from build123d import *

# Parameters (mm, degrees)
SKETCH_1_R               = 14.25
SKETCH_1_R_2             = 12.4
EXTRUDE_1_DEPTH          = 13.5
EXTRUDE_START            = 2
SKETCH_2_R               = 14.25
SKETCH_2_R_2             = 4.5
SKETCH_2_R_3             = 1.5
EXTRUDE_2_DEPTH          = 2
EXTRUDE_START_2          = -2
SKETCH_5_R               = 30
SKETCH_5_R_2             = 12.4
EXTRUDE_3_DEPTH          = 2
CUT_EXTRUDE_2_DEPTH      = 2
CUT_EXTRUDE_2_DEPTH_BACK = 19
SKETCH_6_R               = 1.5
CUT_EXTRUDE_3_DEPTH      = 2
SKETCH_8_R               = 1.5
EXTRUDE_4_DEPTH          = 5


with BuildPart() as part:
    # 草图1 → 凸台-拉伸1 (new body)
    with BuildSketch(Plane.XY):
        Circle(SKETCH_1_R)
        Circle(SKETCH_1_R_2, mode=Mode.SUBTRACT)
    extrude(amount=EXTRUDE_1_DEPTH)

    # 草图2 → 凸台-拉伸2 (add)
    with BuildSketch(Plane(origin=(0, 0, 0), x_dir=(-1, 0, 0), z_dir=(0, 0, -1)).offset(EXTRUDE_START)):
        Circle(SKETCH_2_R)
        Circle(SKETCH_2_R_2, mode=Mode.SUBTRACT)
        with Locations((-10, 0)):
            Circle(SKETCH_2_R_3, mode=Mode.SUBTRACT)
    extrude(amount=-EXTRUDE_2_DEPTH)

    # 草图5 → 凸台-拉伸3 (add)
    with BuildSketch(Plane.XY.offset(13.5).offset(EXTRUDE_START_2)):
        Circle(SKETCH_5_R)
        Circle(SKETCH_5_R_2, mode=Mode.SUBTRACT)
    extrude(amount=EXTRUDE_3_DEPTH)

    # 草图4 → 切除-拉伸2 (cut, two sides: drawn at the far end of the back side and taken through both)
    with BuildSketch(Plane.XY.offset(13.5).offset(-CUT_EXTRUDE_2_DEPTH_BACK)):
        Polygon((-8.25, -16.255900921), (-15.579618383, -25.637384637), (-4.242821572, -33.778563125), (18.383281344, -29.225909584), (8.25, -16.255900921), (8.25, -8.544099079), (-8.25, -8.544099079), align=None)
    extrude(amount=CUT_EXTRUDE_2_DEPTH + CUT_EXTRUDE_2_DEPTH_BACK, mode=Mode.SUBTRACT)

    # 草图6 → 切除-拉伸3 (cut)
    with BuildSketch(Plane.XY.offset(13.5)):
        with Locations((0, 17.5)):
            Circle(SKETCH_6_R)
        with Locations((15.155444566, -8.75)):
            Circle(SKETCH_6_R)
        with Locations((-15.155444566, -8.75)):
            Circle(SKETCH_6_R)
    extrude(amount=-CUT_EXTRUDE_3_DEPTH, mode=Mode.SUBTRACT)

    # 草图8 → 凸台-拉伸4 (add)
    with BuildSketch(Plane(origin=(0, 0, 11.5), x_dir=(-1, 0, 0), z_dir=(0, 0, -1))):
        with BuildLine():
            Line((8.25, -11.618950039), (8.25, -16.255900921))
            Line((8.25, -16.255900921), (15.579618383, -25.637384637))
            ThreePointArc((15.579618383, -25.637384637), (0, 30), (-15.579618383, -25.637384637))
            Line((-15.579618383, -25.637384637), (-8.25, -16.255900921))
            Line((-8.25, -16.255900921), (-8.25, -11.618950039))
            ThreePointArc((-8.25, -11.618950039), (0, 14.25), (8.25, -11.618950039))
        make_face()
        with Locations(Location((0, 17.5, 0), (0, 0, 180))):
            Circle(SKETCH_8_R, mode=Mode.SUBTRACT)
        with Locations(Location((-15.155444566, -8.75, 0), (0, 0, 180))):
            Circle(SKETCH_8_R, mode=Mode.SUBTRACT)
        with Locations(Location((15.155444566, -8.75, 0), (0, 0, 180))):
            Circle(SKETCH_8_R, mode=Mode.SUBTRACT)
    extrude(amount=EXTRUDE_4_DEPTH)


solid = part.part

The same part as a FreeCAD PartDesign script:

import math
import FreeCAD as App
import Part
import Sketcher
from FreeCAD import Vector
Q = App.Units.Quantity


def add_polygon(sketch, points):
    """Adds a closed chain of lines whose ends are joined by coincident constraints."""
    first, n = sketch.GeometryCount, len(points)
    for a, b in zip(points, points[1:] + points[:1]):
        sketch.addGeometry(Part.LineSegment(App.Vector(*a, 0), App.Vector(*b, 0)), False)
    for i in range(n):
        sketch.addConstraint(Sketcher.Constraint("Coincident", first + i, 2, first + (i + 1) % n, 1))

doc = App.newDocument("Part")
body = doc.addObject("PartDesign::Body", "Body")

# Sketch on XY plane
sketch1 = body.newObject("Sketcher::SketchObject", "Sketch")
sketch1.AttachmentSupport = (doc.getObject("XY_Plane"), [""])
sketch1.MapMode = "FlatFace"
sketch1.addGeometry(Part.Circle(Vector(0, 0, 0), Vector(0, 0, 1), 14), False)
sketch1.addGeometry(Part.Circle(Vector(0, 0, 0), Vector(0, 0, 1), 12), False)
sketch1.addConstraint(Sketcher.Constraint("Coincident", 0, 3, -1, 1))
sketch1.addConstraint(Sketcher.Constraint("Coincident", 1, 3, -1, 1))
sketch1.addConstraint(Sketcher.Constraint("Diameter", 0, 28.5))
sketch1.addConstraint(Sketcher.Constraint("Diameter", 1, 24.8))
pad1 = body.newObject("PartDesign::Pad", "Pad")
pad1.Profile = sketch1
pad1.Length = 13.5

# Sketch on XY plane
sketch2 = body.newObject("Sketcher::SketchObject", "Sketch001")
sketch2.AttachmentSupport = (doc.getObject("XY_Plane"), [""])
sketch2.MapMode = "FlatFace"
sketch2.AttachmentOffset = App.Placement(Vector(0, 0, -2), App.Rotation())
sketch2.addGeometry(Part.Circle(Vector(0, 0, 0), Vector(0, 0, 1), 14.2), False)
sketch2.addGeometry(Part.Circle(Vector(10, 0, 0), Vector(0, 0, 1), 1.5), False)
sketch2.addGeometry(Part.Circle(Vector(0, 0, 0), Vector(0, 0, 1), 4.5), False)
sketch2.addConstraint(Sketcher.Constraint("Coincident", 0, 3, -1, 1))
sketch2.addConstraint(Sketcher.Constraint("Coincident", 2, 3, -1, 1))
sketch2.addConstraint(Sketcher.Constraint("PointOnObject", 1, 3, -1))
sketch2.addConstraint(Sketcher.Constraint("Diameter", 1, 3.0))
sketch2.addConstraint(Sketcher.Constraint("Diameter", 2, 9.0))
sketch2.addConstraint(Sketcher.Constraint("Diameter", 0, 28.5))
sketch2.addConstraint(Sketcher.Constraint("DistanceX", -1, 1, 1, 3, 10.0))
pad2 = body.newObject("PartDesign::Pad", "Pad001")
pad2.Profile = sketch2
pad2.Length = 2

# Sketch on XY plane
sketch3 = body.newObject("Sketcher::SketchObject", "Sketch002")
sketch3.AttachmentSupport = (doc.getObject("XY_Plane"), [""])
sketch3.MapMode = "FlatFace"
sketch3.AttachmentOffset = App.Placement(Vector(0, 0, 11.5), App.Rotation())
sketch3.addGeometry(Part.Circle(Vector(0, 0, 0), Vector(0, 0, 1), 30), False)
sketch3.addGeometry(Part.Circle(Vector(0, 0, 0), Vector(0, 0, 1), 12), False)
sketch3.addConstraint(Sketcher.Constraint("Coincident", 0, 3, -1, 1))
sketch3.addConstraint(Sketcher.Constraint("Coincident", 1, 3, -1, 1))
sketch3.addConstraint(Sketcher.Constraint("Diameter", 0, 60.0))
sketch3.addConstraint(Sketcher.Constraint("Diameter", 1, 24.8))
pad3 = body.newObject("PartDesign::Pad", "Pad002")
pad3.Profile = sketch3
pad3.Length = 2

# Sketch on XY plane
sketch4 = body.newObject("Sketcher::SketchObject", "Sketch003")
sketch4.AttachmentSupport = (doc.getObject("XY_Plane"), [""])
sketch4.MapMode = "FlatFace"
sketch4.AttachmentOffset = App.Placement(Vector(0, 0, 13.5), App.Rotation())
add_polygon(sketch4, [(-8, -16), (-16, -26), (-4, -34), (18, -29), (8, -16), (8, -9), (-8, -9)])  # lines 0-6
sketch4.addConstraint(Sketcher.Constraint("Vertical", 4))
sketch4.addConstraint(Sketcher.Constraint("Horizontal", 5))
sketch4.addConstraint(Sketcher.Constraint("Vertical", 6))
sketch4.addConstraint(Sketcher.Constraint("Symmetric", 3, 2, 6, 2, -2))
sketch4.addConstraint(Sketcher.Constraint("Angle", 0, Q("-128 deg")))
sketch4.addConstraint(Sketcher.Constraint("Angle", 3, Q("128 deg")))
sketch4.addConstraint(Sketcher.Constraint("DistanceX", 5, 2, 5, 1, 16.5))
sketch4.addConstraint(Sketcher.Constraint("DistanceY", 4, 1, 4, 2, 7.711802))
sketch4.addConstraint(Sketcher.Constraint("DistanceY", 3, 2, -1, 1, 16.255901))
sketch4.addConstraint(Sketcher.Constraint("DistanceX", 0, 2, 2, 2, 33.9629))
sketch4.addConstraint(Sketcher.Constraint("Distance", 1, 13.95714))
sketch4.addConstraint(Sketcher.Constraint("DistanceX", 0, 2, -1, 1, 15.579618))
sketch4.addConstraint(Sketcher.Constraint("DistanceX", 1, 2, -1, 1, 4.242822))
pocket1 = body.newObject("PartDesign::Pocket", "Pocket")
pocket1.Profile = sketch4
pocket1.Type = "ThroughAll"
pocket1.Midplane = True

# Sketch on XY plane
sketch5 = body.newObject("Sketcher::SketchObject", "Sketch004")
sketch5.AttachmentSupport = (doc.getObject("XY_Plane"), [""])
sketch5.MapMode = "FlatFace"
sketch5.AttachmentOffset = App.Placement(Vector(0, 0, 13.5), App.Rotation())
sketch5.addGeometry(Part.Circle(Vector(0, 17.5, 0), Vector(0, 0, 1), 1.5), False)
sketch5.addGeometry(Part.Circle(Vector(15.2, -8.8, 0), Vector(0, 0, 1), 1.5), False)
sketch5.addGeometry(Part.Circle(Vector(-15.2, -8.8, 0), Vector(0, 0, 1), 1.5), False)
sketch5.addConstraint(Sketcher.Constraint("Equal", 0, 1))
sketch5.addConstraint(Sketcher.Constraint("Equal", 1, 2))
sketch5.addConstraint(Sketcher.Constraint("Symmetric", 1, 3, 2, 3, -2))
sketch5.addConstraint(Sketcher.Constraint("PointOnObject", 0, 3, -2))
sketch5.addConstraint(Sketcher.Constraint("Diameter", 0, 3.0))
sketch5.addConstraint(Sketcher.Constraint("DistanceY", -1, 1, 0, 3, 17.5))
sketch5.addConstraint(Sketcher.Constraint("DistanceY", 1, 3, -1, 1, 8.75))
sketch5.addConstraint(Sketcher.Constraint("DistanceX", 2, 3, 1, 3, 30.310889))
pocket2 = body.newObject("PartDesign::Pocket", "Pocket001")
pocket2.Profile = sketch5
pocket2.Length = 2

# Sketch on XY plane
sketch6 = body.newObject("Sketcher::SketchObject", "Sketch005")
sketch6.AttachmentSupport = (doc.getObject("XY_Plane"), [""])
sketch6.MapMode = "FlatFace"
sketch6.AttachmentOffset = App.Placement(Vector(0, 0, 11.5), App.Rotation())
sketch6.addGeometry(Part.LineSegment(Vector(-8.2, -11.6, 0), Vector(-8.2, -16.3, 0)), False)
sketch6.addGeometry(Part.LineSegment(Vector(-8.2, -16.3, 0), Vector(-15.6, -25.6, 0)), False)
sketch6.addGeometry(Part.ArcOfCircle(Part.Circle(Vector(0, 0, 0), Vector(0, 0, 1), 30), math.radians(-59), math.radians(239)), False)
sketch6.addGeometry(Part.LineSegment(Vector(15.6, -25.6, 0), Vector(8.2, -16.3, 0)), False)
sketch6.addGeometry(Part.LineSegment(Vector(8.2, -16.3, 0), Vector(8.2, -11.6, 0)), False)
sketch6.addGeometry(Part.ArcOfCircle(Part.Circle(Vector(0, 0, 0), Vector(0, 0, 1), 14.2), math.radians(-55), math.radians(235)), False)
sketch6.addGeometry(Part.Circle(Vector(15.2, -8.8, 0), Vector(0, 0, 1), 1.5), False)
sketch6.addGeometry(Part.Circle(Vector(-15.2, -8.8, 0), Vector(0, 0, 1), 1.5), False)
sketch6.addGeometry(Part.Circle(Vector(0, 17.5, 0), Vector(0, 0, 1), 1.5), False)
sketch6.addConstraint(Sketcher.Constraint("Coincident", 0, 2, 1, 1))
sketch6.addConstraint(Sketcher.Constraint("Coincident", 1, 2, 2, 2))
sketch6.addConstraint(Sketcher.Constraint("Coincident", 2, 1, 3, 1))
sketch6.addConstraint(Sketcher.Constraint("Coincident", 3, 2, 4, 1))
sketch6.addConstraint(Sketcher.Constraint("Coincident", 4, 2, 5, 1))
sketch6.addConstraint(Sketcher.Constraint("Coincident", 5, 2, 0, 1))
sketch6.addConstraint(Sketcher.Constraint("Vertical", 0))
sketch6.addConstraint(Sketcher.Constraint("Vertical", 4))
sketch6.addConstraint(Sketcher.Constraint("Coincident", 2, 3, -1, 1))
sketch6.addConstraint(Sketcher.Constraint("Coincident", 5, 3, -1, 1))
sketch6.addConstraint(Sketcher.Constraint("Equal", 6, 7))
sketch6.addConstraint(Sketcher.Constraint("Equal", 7, 8))
sketch6.addConstraint(Sketcher.Constraint("Symmetric", 6, 3, 7, 3, -2))
sketch6.addConstraint(Sketcher.Constraint("Symmetric", 0, 2, 3, 2, -2))
sketch6.addConstraint(Sketcher.Constraint("PointOnObject", 8, 3, -2))
sketch6.addConstraint(Sketcher.Constraint("Horizontal", 1, 2, 2, 1))
sketch6.addConstraint(Sketcher.Constraint("Diameter", 6, 3.0))
sketch6.addConstraint(Sketcher.Constraint("Radius", 2, 30.0))
sketch6.addConstraint(Sketcher.Constraint("Angle", 1, Q("-128 deg")))
sketch6.addConstraint(Sketcher.Constraint("Radius", 5, 14.25))
sketch6.addConstraint(Sketcher.Constraint("DistanceY", -1, 1, 8, 3, 17.5))
sketch6.addConstraint(Sketcher.Constraint("DistanceX", 0, 2, 3, 2, 16.5))
sketch6.addConstraint(Sketcher.Constraint("DistanceY", 6, 3, -1, 1, 8.75))
sketch6.addConstraint(Sketcher.Constraint("DistanceY", 0, 2, 0, 1, 4.636951))
sketch6.addConstraint(Sketcher.Constraint("DistanceX", 7, 3, 6, 3, 30.310889))
pad4 = body.newObject("PartDesign::Pad", "Pad003")
pad4.Profile = sketch6
pad4.Length = 5
pad4.Reversed = True

doc.recompute()
